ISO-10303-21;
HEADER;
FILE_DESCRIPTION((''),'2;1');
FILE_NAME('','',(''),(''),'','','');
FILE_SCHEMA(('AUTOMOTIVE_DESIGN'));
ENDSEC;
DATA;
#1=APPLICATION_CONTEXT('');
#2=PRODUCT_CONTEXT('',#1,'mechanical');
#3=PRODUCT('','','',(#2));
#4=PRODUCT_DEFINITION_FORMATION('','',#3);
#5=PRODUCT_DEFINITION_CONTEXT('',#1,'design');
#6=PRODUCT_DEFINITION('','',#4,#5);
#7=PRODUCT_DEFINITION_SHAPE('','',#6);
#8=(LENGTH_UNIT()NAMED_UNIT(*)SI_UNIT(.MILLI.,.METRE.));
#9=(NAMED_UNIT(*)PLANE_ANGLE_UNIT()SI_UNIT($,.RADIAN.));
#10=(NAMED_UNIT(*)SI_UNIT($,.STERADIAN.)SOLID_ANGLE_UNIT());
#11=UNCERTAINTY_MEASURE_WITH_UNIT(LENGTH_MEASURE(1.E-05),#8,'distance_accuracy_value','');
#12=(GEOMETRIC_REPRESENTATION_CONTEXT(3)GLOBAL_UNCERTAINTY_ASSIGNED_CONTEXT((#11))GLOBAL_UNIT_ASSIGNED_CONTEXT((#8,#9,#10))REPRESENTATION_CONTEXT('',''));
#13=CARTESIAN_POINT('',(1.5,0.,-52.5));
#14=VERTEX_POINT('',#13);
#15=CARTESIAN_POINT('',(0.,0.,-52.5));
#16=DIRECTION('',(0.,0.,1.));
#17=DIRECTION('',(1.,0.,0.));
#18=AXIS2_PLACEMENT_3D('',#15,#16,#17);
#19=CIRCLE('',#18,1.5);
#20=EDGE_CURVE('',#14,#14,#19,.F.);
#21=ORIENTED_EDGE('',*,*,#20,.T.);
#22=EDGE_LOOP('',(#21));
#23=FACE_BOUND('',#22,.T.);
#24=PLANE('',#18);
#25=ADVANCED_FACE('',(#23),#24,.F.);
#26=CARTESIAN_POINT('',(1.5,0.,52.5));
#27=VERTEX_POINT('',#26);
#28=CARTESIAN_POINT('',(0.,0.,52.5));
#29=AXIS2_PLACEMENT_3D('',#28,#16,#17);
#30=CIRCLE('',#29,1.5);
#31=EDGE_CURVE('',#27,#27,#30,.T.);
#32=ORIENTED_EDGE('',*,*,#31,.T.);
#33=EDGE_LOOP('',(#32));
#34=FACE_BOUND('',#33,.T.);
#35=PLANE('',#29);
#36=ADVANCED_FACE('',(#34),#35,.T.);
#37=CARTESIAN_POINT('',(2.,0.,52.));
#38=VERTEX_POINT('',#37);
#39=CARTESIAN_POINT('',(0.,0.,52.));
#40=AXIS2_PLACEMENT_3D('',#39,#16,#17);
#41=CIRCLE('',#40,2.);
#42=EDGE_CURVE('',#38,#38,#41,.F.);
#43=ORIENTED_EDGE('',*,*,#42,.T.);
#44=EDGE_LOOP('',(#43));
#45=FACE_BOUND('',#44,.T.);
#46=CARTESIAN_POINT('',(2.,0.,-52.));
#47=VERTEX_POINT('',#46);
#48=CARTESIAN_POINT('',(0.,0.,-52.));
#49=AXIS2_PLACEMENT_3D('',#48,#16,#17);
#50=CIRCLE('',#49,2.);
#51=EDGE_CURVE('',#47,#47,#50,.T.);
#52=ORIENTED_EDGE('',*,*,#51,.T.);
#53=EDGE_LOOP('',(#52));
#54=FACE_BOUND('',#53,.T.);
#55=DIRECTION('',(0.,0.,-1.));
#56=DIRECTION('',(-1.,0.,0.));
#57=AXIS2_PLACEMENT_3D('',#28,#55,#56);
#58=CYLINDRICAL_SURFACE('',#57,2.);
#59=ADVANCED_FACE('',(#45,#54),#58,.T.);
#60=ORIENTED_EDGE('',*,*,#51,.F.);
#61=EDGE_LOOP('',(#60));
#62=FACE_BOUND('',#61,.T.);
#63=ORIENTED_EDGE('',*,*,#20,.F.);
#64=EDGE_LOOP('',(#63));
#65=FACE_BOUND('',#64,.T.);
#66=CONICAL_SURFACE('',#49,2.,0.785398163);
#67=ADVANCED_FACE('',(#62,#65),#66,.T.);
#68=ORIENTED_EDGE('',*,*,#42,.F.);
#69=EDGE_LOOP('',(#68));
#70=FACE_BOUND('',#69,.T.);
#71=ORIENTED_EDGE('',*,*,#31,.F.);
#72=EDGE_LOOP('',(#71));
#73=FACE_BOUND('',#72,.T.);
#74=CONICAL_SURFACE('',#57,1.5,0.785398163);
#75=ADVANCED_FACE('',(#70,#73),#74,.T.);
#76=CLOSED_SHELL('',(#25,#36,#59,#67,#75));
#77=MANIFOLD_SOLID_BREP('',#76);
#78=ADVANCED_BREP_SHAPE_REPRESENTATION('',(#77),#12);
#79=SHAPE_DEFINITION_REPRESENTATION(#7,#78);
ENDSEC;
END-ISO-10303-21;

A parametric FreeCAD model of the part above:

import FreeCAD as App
import Part
import Sketcher
Q = App.Units.Quantity


def edges_at(feature, points):
    """Names of the edges that pass closest to the given points."""
    edges = feature.Shape.Edges
    near = lambda p: min(range(len(edges)), key=lambda i: edges[i].distToShape(Part.Vertex(*p))[0])
    return sorted({f"Edge{near(p) + 1}" for p in points})

doc = App.newDocument("Part")
body = doc.addObject("PartDesign::Body", "Body")

# Sketch on XY plane
sketch1 = doc.addObject("Sketcher::SketchObject", "Sketch")
body.addObject(sketch1)
sketch1.AttachmentSupport = (doc.XY_Plane, [""])
sketch1.MapMode = "FlatFace"
sketch1.addGeometry(Part.Circle(App.Vector(0, 0, 0), App.Vector(0, 0, 1), 2), False)
sketch1.addConstraint(Sketcher.Constraint("Coincident", 0, 3, -1, 1))
sketch1.addConstraint(Sketcher.Constraint("Diameter", 0, Q("4 mm")))
pad1 = doc.addObject("PartDesign::Pad", "Pad")
body.addObject(pad1)
pad1.Profile = sketch1
pad1.Length = 105
pad1.Midplane = True
doc.recompute()

chamfer = doc.addObject("PartDesign::Chamfer", "Chamfer")
body.addObject(chamfer)
chamfer.Base = (pad1, edges_at(pad1, [(-2, 0, -52.5), (-2, 0, 52.5)]))
chamfer.Size = 0.5

doc.recompute()
